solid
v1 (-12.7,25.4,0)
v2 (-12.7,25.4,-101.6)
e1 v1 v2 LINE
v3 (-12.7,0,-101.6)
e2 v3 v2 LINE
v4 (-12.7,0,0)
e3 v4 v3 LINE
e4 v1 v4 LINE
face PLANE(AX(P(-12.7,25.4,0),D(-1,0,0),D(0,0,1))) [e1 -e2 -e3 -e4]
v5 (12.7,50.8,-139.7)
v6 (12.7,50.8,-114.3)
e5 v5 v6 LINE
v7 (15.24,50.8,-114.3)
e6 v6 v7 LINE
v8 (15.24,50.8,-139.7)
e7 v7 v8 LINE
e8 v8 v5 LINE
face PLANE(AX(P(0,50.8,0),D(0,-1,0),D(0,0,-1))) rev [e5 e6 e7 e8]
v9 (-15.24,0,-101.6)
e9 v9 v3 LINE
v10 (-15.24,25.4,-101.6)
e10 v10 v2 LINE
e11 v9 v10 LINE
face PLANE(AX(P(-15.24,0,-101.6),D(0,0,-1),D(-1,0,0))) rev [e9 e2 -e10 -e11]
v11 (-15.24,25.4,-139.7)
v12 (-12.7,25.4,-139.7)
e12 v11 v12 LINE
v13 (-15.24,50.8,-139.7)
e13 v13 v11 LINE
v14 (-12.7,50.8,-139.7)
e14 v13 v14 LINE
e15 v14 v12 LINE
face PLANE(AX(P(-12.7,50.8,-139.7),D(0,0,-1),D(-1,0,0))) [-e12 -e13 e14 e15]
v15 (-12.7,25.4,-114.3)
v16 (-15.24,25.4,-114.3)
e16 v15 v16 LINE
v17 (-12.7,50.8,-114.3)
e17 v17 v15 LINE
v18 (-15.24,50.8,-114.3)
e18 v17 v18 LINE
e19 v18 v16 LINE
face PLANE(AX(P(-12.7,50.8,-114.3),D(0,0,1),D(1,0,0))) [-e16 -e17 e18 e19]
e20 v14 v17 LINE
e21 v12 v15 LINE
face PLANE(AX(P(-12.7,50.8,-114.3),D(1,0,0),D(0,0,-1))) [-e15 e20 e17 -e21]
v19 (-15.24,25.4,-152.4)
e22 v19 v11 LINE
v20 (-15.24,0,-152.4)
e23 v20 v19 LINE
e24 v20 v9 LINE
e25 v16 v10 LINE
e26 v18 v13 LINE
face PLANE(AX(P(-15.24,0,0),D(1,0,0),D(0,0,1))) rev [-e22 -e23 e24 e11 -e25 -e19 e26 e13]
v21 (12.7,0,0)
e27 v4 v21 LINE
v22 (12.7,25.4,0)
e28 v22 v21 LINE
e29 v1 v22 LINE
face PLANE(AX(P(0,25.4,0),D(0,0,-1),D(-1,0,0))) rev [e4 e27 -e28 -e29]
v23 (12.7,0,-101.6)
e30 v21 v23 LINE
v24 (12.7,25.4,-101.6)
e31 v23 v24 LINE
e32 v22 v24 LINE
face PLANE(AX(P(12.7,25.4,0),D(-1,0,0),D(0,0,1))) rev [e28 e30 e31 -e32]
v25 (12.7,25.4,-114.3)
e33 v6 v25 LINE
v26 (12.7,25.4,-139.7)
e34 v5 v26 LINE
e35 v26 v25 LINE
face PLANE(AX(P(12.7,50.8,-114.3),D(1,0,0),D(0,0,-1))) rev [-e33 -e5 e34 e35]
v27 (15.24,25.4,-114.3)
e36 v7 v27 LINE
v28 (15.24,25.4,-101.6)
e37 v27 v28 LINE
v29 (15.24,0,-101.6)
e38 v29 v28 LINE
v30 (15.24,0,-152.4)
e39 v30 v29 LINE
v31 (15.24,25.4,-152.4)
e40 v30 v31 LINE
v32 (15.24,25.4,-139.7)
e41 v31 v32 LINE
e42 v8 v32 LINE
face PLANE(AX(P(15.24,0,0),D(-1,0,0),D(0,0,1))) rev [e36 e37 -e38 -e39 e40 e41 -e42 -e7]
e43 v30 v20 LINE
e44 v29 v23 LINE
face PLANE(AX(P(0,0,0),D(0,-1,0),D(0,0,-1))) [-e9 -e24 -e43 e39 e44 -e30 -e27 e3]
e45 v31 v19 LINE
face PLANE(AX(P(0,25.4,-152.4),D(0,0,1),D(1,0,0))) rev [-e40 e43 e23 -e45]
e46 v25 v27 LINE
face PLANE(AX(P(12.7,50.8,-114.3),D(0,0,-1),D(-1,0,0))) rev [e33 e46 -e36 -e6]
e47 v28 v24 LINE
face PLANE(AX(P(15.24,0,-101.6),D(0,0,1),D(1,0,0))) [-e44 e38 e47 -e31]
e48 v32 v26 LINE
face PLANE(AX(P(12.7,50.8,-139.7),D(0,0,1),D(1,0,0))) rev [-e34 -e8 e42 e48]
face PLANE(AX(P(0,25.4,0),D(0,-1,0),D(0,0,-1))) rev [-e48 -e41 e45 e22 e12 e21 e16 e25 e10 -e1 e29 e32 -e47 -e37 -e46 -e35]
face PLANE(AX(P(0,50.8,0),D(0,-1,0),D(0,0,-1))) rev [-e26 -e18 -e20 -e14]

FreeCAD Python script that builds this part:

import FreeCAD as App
import Part
import Sketcher
Q = App.Units.Quantity


def add_polygon(sketch, points):
    """Adds a closed chain of lines whose ends are joined by coincident constraints."""
    first, n = sketch.GeometryCount, len(points)
    for a, b in zip(points, points[1:] + points[:1]):
        sketch.addGeometry(Part.LineSegment(App.Vector(*a, 0), App.Vector(*b, 0)), False)
    for i in range(n):
        sketch.addConstraint(Sketcher.Constraint("Coincident", first + i, 2, first + (i + 1) % n, 1))

doc = App.newDocument("Part")
params = doc.addObject("Spreadsheet::Sheet", "Params")
for row, (alias, value) in enumerate([
    ("sketch1_height", "6 in"),
    ("sketch1_width", "0.5 in"),
    ("pad1_length", "1 in"),
    ("sketch2_width", "1 in"),
    ("sketch2_height", "2 in"),
    ("pad2_length", "0.1 in"),
    ("sketch3_height", "1 in"),
    ("sketch3_width", "0.1 in"),
    ("pad3_length", "1 in"),
], start=1):
    params.set(f"A{row}", alias)
    params.set(f"B{row}", "=" + value)
    params.setAlias(f"B{row}", alias)

body = doc.addObject("PartDesign::Body", "Body")

# Sketch on XZ plane
sketch1 = body.newObject("Sketcher::SketchObject", "Sketch")
sketch1.AttachmentSupport = (doc.getObject("XZ_Plane"), [""])
sketch1.MapMode = "FlatFace"
add_polygon(sketch1, [(0, -152), (0, 0), (13, 0), (13, -152)])  # lines 0-3
sketch1.addConstraint([
    Sketcher.Constraint("Vertical", 0),
    Sketcher.Constraint("Horizontal", 1),
    Sketcher.Constraint("Vertical", 2),
    Sketcher.Constraint("Horizontal", 3),
    Sketcher.Constraint("Coincident", 0, 2, -1, 1),
    Sketcher.Constraint("DistanceY", 0, 1, 0, 2, Q("6 in")),
    Sketcher.Constraint("DistanceX", 1, 1, 1, 2, Q("0.5 in")),
])
sketch1.setExpression("Constraints[9]", "Params.sketch1_height")
sketch1.setExpression("Constraints[10]", "Params.sketch1_width")
pad1 = body.newObject("PartDesign::Pad", "Pad")
pad1.Profile = sketch1
pad1.setExpression("Length", "Params.pad1_length")
pad1.Reversed = True

# Sketch on YZ plane
sketch2 = body.newObject("Sketcher::SketchObject", "Sketch001")
sketch2.AttachmentSupport = (doc.getObject("YZ_Plane"), [""])
sketch2.MapMode = "FlatFace"
sketch2.AttachmentOffset = App.Placement(App.Vector(0, 0, 0.5 * 25.4), App.Rotation())
add_polygon(sketch2, [(25, -102), (0, -102), (0, -152), (25, -152)])  # lines 0-3
sketch2.addConstraint([
    Sketcher.Constraint("Horizontal", 0),
    Sketcher.Constraint("Vertical", 1),
    Sketcher.Constraint("Horizontal", 2),
    Sketcher.Constraint("Vertical", 3),
    Sketcher.Constraint("PointOnObject", 0, 2, -2),
    Sketcher.Constraint("DistanceX", 0, 2, 0, 1, Q("1 in")),
    Sketcher.Constraint("DistanceY", 1, 2, 1, 1, Q("2 in")),
    Sketcher.Constraint("DistanceY", 0, 2, -1, 1, Q("4 in")),
])
sketch2.setExpression("Constraints[9]", "Params.sketch2_width")
sketch2.setExpression("Constraints[10]", "Params.sketch2_height")
pad2 = body.newObject("PartDesign::Pad", "Pad001")
pad2.Profile = sketch2
pad2.setExpression("Length", "Params.pad2_length")

# Sketch on XZ plane
sketch3 = body.newObject("Sketcher::SketchObject", "Sketch002")
sketch3.AttachmentSupport = (doc.getObject("XZ_Plane"), [""])
sketch3.MapMode = "FlatFace"
sketch3.AttachmentOffset = App.Placement(App.Vector(0, 0, -1 * 25.4), App.Rotation())
add_polygon(sketch3, [(12.7, -139.7), (12.7, -114.3), (15.2, -114.3), (15.2, -139.7)])  # lines 0-3
sketch3.addConstraint([
    Sketcher.Constraint("Vertical", 0),
    Sketcher.Constraint("Horizontal", 1),
    Sketcher.Constraint("Vertical", 2),
    Sketcher.Constraint("Horizontal", 3),
    Sketcher.Constraint("DistanceY", 0, 1, 0, 2, Q("1 in")),
    Sketcher.Constraint("DistanceX", 1, 1, 1, 2, Q("0.1 in")),
    Sketcher.Constraint("DistanceX", -1, 1, 0, 2, Q("0.5 in")),
    Sketcher.Constraint("DistanceY", 0, 2, -1, 1, Q("4.5 in")),
])
sketch3.setExpression("Constraints[8]", "Params.sketch3_height")
sketch3.setExpression("Constraints[9]", "Params.sketch3_width")
pad3 = body.newObject("PartDesign::Pad", "Pad002")
pad3.Profile = sketch3
pad3.setExpression("Length", "Params.pad3_length")
pad3.Reversed = True
doc.recompute()

mirrored = body.newObject("PartDesign::Mirrored", "Mirrored")
mirrored.Originals = [pad1, pad2, pad3]
mirrored.MirrorPlane = (doc.getObject("YZ_Plane"), [""])
body.Tip = mirrored

doc.recompute()
